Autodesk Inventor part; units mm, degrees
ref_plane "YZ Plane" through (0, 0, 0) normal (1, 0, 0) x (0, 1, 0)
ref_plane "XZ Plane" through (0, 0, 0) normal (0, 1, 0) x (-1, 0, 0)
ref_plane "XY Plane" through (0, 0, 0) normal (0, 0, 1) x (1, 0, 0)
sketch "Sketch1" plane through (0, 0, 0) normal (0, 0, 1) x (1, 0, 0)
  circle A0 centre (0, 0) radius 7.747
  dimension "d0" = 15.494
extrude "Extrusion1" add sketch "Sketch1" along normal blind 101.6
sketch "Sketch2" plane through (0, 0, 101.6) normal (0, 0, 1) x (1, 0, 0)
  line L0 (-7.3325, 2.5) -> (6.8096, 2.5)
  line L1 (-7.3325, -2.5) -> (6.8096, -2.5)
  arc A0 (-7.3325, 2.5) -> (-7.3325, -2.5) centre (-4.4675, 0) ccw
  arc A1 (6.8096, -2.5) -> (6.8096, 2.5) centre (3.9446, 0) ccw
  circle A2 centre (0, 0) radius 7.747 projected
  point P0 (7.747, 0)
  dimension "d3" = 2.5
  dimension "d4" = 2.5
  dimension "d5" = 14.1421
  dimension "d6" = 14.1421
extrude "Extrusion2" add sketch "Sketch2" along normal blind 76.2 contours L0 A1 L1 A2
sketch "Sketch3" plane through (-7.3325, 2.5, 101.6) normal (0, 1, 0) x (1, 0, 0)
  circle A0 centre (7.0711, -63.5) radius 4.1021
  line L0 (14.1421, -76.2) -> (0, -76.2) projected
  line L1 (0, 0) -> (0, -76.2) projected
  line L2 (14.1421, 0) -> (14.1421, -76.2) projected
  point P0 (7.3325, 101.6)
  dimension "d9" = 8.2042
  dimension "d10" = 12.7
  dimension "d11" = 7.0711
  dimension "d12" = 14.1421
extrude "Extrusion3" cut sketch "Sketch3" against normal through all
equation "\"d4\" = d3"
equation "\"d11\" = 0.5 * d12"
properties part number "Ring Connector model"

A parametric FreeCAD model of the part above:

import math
import FreeCAD as App
import Part
import Sketcher
from FreeCAD import Vector
Q = App.Units.Quantity

doc = App.newDocument("Part")
body = doc.addObject("PartDesign::Body", "Body")

sketch1 = body.newObject("Sketcher::SketchObject", "Sketch")
sketch1.AttachmentSupport = (doc.getObject("XY_Plane"), [""])
sketch1.MapMode = "FlatFace"
sketch1.addGeometry(Part.Circle(Vector(0, 0, 0), Vector(0, 0, 1), 7.747), False)
sketch1.addConstraint(Sketcher.Constraint("Coincident", 0, 3, -1, 1))
sketch1.addConstraint(Sketcher.Constraint("Diameter", 0, Q("0.61 in")))
pad1 = body.newObject("PartDesign::Pad", "Pad")
pad1.Profile = sketch1
pad1.Length = Q("4 in")

sketch2 = body.newObject("Sketcher::SketchObject", "Sketch001")
sketch2.AttachmentSupport = (doc.getObject("XY_Plane"), [""])
sketch2.MapMode = "FlatFace"
sketch2.AttachmentOffset = App.Placement(Vector(0, 0, 4 * 25.4), App.Rotation())
sketch2.addGeometry(Part.LineSegment(Vector(6.8096, 2.5, 0), Vector(-7.3325, 2.5, 0)), False)
sketch2.addGeometry(Part.ArcOfCircle(Part.Circle(Vector(0, 0, 0), Vector(0, 0, 1), 7.747), math.radians(161.173301), math.radians(198.826699)), False)
sketch2.addGeometry(Part.LineSegment(Vector(-7.3325, -2.5, 0), Vector(6.8096, -2.5, 0)), False)
sketch2.addGeometry(Part.ArcOfCircle(Part.Circle(Vector(3.9446, 0, 0), Vector(0, 0, 1), 3.802397), math.radians(-41.107962), math.radians(41.107962)), False)
sketch2.addConstraint(Sketcher.Constraint("Coincident", 0, 2, 1, 1))
sketch2.addConstraint(Sketcher.Constraint("Coincident", 1, 2, 2, 1))
sketch2.addConstraint(Sketcher.Constraint("Coincident", 2, 2, 3, 1))
sketch2.addConstraint(Sketcher.Constraint("Coincident", 3, 2, 0, 1))
sketch2.addConstraint(Sketcher.Constraint("Horizontal", 0))
sketch2.addConstraint(Sketcher.Constraint("Horizontal", 2))
sketch2.addConstraint(Sketcher.Constraint("Coincident", 1, 3, -1, 1))
sketch2.addConstraint(Sketcher.Constraint("Symmetric", 2, 2, 3, 2, -1))
sketch2.addConstraint(Sketcher.Constraint("Radius", 1, Q("0.305 in")))
sketch2.addConstraint(Sketcher.Constraint("DistanceX", 0, 2, 0, 1, 14.142))
sketch2.addConstraint(Sketcher.Constraint("Radius", 3, Q("0.1497 in")))
sketch2.addConstraint(Sketcher.Constraint("DistanceY", -1, 1, 0, 2, 2.5))
pad2 = body.newObject("PartDesign::Pad", "Pad001")
pad2.Profile = sketch2
pad2.Length = Q("3 in")

sketch3 = body.newObject("Sketcher::SketchObject", "Sketch002")
sketch3.AttachmentSupport = (doc.getObject("XZ_Plane"), [""])
sketch3.MapMode = "FlatFace"
sketch3.AttachmentOffset = App.Placement(Vector(0, 0, -2.5), App.Rotation())
sketch3.addGeometry(Part.Circle(Vector(-0.2614, 165.1, 0), Vector(0, 0, 1), 4.1021), False)
sketch3.addConstraint(Sketcher.Constraint("Diameter", 0, Q("0.323 in")))
sketch3.addConstraint(Sketcher.Constraint("DistanceY", -1, 1, 0, 3, Q("6.5 in")))
sketch3.addConstraint(Sketcher.Constraint("DistanceX", 0, 3, -1, 1, Q("0.0103 in")))
pocket1 = body.newObject("PartDesign::Pocket", "Pocket")
pocket1.Profile = sketch3
pocket1.Type = "ThroughAll"
pocket1.Reversed = True

doc.recompute()
